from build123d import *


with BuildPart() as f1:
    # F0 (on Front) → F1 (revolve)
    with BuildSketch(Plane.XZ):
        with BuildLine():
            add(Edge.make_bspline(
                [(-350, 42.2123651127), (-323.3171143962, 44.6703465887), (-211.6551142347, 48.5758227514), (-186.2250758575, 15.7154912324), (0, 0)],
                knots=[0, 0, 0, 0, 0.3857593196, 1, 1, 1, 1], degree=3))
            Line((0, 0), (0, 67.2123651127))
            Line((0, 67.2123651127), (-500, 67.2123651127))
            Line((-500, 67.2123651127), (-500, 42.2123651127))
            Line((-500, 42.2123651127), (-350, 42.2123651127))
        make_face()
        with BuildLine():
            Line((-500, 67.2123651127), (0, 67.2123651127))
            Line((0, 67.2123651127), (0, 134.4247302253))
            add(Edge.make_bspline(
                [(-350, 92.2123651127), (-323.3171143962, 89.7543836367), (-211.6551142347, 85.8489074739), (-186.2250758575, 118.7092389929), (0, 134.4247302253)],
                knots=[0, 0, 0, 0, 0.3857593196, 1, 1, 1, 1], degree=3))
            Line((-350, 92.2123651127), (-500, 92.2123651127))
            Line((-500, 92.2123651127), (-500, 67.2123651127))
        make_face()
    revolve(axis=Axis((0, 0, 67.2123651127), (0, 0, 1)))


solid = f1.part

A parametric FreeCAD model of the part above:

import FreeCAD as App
import Part
import Sketcher
from FreeCAD import Vector
Q = App.Units.Quantity

doc = App.newDocument("Part")
body = doc.addObject("PartDesign::Body", "Body")

# Sketch on XZ plane
sketch1 = body.newObject("Sketcher::SketchObject", "Sketch")
sketch1.AttachmentSupport = (doc.getObject("XZ_Plane"), [""])
sketch1.MapMode = "FlatFace"
sketch1.addGeometry(Part.BSplineCurve([Vector(-350, 42.212365, 0), Vector(-323.317114, 44.670347, 0), Vector(-211.655114, 48.575823, 0), Vector(-186.225076, 15.715491, 0), Vector(0, 0, 0)], [4, 1, 4], [0, 0.38575932, 1], False, 3, [1, 1, 1, 1, 1], False), False)
sketch1.addGeometry(Part.LineSegment(Vector(0, 0, 0), Vector(0, 134.42473, 0)), False)
sketch1.addGeometry(Part.BSplineCurve([Vector(-350, 92.212365, 0), Vector(-323.317114, 89.754384, 0), Vector(-211.655114, 85.848907, 0), Vector(-186.225076, 118.709239, 0), Vector(0, 134.42473, 0)], [4, 1, 4], [0, 0.38575932, 1], False, 3, [1, 1, 1, 1, 1], False), False)
sketch1.addGeometry(Part.LineSegment(Vector(-350, 92.212365, 0), Vector(-500, 92.212365, 0)), False)
sketch1.addGeometry(Part.LineSegment(Vector(-500, 92.212365, 0), Vector(-500, 42.212365, 0)), False)
sketch1.addGeometry(Part.LineSegment(Vector(-500, 42.212365, 0), Vector(-350, 42.212365, 0)), False)
sketch1.addConstraint(Sketcher.Constraint("Block", 0))
sketch1.addConstraint(Sketcher.Constraint("Block", 2))
sketch1.addConstraint(Sketcher.Constraint("Coincident", 0, 2, 1, 1))
sketch1.addConstraint(Sketcher.Constraint("Coincident", 1, 2, 2, 2))
sketch1.addConstraint(Sketcher.Constraint("Coincident", 2, 1, 3, 1))
sketch1.addConstraint(Sketcher.Constraint("Coincident", 3, 2, 4, 1))
sketch1.addConstraint(Sketcher.Constraint("Coincident", 4, 2, 5, 1))
sketch1.addConstraint(Sketcher.Constraint("Coincident", 5, 2, 0, 1))
sketch1.addConstraint(Sketcher.Constraint("Horizontal", 3))
sketch1.addConstraint(Sketcher.Constraint("Vertical", 4))
sketch1.addConstraint(Sketcher.Constraint("Horizontal", 5))
sketch1.addConstraint(Sketcher.Constraint("DistanceX", 3, 2, 3, 1, Q("150 mm")))
revolution = body.newObject("PartDesign::Revolution", "Revolution")
revolution.Profile = sketch1
revolution.ReferenceAxis = (sketch1, ["V_Axis"])
revolution.Angle = 360

doc.recompute()
